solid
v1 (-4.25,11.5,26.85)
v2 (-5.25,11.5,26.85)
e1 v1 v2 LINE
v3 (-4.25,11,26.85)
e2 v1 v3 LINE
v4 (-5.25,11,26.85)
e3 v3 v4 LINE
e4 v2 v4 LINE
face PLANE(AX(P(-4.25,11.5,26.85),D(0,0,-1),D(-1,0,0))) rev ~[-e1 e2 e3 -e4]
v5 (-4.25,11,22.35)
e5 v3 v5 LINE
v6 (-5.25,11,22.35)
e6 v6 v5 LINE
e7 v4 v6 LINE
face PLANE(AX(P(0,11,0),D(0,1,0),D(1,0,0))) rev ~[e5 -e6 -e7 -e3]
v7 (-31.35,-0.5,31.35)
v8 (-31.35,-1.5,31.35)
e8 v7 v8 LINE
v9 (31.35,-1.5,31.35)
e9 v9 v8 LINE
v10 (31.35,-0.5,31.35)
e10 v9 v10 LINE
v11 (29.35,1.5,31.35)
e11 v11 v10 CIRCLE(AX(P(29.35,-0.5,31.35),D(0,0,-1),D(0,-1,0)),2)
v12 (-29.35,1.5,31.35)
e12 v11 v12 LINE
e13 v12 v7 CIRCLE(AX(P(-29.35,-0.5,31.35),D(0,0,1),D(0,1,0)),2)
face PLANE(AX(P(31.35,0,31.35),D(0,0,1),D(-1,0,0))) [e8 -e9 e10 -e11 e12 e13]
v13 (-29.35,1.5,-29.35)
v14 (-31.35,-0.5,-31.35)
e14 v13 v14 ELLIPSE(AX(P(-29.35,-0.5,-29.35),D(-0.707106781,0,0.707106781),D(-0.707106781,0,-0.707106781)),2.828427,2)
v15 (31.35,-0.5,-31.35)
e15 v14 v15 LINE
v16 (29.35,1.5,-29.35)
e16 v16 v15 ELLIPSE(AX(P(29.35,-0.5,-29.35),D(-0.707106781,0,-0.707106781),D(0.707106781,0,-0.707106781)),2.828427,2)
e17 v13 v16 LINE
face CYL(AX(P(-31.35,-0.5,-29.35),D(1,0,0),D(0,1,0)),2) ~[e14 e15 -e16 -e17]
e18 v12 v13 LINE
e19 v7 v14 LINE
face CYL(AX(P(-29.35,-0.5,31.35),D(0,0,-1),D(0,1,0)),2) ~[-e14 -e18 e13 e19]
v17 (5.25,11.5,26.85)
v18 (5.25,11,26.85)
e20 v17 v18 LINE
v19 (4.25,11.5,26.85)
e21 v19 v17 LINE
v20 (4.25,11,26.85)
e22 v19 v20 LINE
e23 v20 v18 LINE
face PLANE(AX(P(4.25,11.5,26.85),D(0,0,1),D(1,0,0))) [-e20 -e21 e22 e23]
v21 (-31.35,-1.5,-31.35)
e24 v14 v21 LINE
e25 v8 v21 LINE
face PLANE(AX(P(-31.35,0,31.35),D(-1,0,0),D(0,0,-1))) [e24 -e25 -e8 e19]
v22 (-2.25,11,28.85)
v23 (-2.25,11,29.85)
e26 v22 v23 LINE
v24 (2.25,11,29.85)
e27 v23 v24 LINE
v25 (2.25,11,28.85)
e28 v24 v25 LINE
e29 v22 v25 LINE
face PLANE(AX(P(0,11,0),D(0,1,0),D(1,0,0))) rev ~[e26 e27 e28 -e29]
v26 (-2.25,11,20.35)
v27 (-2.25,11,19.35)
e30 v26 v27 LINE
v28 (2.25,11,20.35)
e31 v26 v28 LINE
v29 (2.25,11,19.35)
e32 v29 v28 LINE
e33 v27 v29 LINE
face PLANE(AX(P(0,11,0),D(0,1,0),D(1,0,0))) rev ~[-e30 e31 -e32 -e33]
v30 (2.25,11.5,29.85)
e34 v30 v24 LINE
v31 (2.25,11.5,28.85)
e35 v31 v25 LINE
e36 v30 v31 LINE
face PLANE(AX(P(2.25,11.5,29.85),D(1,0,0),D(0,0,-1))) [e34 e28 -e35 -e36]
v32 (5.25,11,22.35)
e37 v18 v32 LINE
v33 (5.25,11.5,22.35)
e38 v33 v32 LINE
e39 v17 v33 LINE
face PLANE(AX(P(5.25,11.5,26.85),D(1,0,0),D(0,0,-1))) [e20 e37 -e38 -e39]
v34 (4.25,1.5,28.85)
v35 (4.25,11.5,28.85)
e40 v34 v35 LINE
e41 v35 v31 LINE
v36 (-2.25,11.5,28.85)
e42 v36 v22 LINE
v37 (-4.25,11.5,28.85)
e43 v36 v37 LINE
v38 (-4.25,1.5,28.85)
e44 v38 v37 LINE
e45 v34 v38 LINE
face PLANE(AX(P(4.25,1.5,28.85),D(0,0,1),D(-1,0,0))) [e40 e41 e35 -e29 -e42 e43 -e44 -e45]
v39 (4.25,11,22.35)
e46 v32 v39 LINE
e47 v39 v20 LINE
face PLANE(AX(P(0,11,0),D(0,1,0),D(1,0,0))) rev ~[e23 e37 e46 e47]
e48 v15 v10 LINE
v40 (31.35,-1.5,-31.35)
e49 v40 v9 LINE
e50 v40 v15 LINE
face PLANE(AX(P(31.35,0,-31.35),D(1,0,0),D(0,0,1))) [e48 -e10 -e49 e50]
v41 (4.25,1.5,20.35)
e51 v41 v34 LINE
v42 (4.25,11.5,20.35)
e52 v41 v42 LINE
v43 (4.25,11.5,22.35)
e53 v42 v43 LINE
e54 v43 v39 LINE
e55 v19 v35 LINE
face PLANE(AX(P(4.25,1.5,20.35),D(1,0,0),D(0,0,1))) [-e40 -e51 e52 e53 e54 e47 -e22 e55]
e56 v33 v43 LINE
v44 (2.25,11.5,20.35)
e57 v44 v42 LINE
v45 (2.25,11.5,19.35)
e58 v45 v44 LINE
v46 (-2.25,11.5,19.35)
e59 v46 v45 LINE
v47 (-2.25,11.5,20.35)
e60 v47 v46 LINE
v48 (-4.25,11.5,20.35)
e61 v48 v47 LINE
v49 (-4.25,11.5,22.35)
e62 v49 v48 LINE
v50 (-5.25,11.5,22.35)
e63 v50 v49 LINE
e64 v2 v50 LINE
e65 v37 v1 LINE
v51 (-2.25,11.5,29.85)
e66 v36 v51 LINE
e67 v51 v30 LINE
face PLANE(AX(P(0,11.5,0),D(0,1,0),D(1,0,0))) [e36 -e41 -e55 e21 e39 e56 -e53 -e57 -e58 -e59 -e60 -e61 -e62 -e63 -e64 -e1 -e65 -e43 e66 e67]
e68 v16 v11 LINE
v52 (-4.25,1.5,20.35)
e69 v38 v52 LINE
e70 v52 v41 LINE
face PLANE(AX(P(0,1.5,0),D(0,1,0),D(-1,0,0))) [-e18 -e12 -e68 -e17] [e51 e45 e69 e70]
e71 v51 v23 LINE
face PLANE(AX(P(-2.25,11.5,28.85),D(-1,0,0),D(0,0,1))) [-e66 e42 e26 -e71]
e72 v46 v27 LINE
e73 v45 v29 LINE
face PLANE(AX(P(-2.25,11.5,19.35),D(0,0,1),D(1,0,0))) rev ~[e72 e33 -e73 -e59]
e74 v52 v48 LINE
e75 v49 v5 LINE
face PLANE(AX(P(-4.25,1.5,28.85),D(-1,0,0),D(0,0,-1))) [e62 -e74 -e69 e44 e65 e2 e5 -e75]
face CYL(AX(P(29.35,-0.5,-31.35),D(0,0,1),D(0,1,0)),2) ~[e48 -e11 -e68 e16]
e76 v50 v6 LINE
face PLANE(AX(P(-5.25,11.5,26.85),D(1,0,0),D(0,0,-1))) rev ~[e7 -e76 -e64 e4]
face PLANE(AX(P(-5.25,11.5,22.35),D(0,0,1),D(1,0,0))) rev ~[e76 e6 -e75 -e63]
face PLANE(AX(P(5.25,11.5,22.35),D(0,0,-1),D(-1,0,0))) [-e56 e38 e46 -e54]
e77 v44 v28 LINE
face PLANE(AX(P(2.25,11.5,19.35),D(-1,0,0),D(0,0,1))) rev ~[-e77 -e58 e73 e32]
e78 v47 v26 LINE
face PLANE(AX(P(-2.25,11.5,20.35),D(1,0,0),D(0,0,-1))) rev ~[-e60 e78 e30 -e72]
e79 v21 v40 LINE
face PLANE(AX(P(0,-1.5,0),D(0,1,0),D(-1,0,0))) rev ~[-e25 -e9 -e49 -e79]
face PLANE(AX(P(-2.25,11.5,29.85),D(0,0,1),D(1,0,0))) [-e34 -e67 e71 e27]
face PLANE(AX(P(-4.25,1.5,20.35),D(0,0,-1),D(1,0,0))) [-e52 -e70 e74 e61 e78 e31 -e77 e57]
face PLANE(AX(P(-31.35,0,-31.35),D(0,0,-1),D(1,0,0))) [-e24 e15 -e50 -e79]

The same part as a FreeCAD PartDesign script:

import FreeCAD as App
import Part
import Sketcher

V = App.Vector
Q = App.Units.Quantity


def edges_at(feature, points):
    """Names of the edges that pass closest to the given points."""
    edges = feature.Shape.Edges
    near = lambda p: min(range(len(edges)), key=lambda i: edges[i].distToShape(Part.Vertex(*p))[0])
    return sorted({f"Edge{near(p) + 1}" for p in points})

doc = App.newDocument("Part")
params = doc.addObject("Spreadsheet::Sheet", "Params")
for row, (alias, value) in enumerate([
    ("sketch1_width", "62.7 mm"),
    ("pad1_length", "3 mm"),
    ("sketch2_width", "8.5 mm"),
    ("pad2_length", "10 mm"),
    ("sketch3_width", "1 mm"),
    ("sketch3_width2", "4.5 mm"),
    ("pad3_length", "0.5 mm"),
    ("fillet_radius", "2 mm"),
], start=1):
    params.set(f"A{row}", alias)
    params.set(f"B{row}", "=" + value)
    params.setAlias(f"B{row}", alias)

body = doc.addObject("PartDesign::Body", "Body")

sketch1 = body.newObject("Sketcher::SketchObject", "Sketch")
sketch1.AttachmentSupport = (doc.getObject("XZ_Plane"), [""])
sketch1.MapMode = "FlatFace"
sketch1.addGeometry(Part.LineSegment(V(-31, 31, 0), V(31, 31, 0)), False)
sketch1.addGeometry(Part.LineSegment(V(31, 31, 0), V(31, -31, 0)), False)
sketch1.addGeometry(Part.LineSegment(V(31, -31, 0), V(-31, -31, 0)), False)
sketch1.addGeometry(Part.LineSegment(V(-31, -31, 0), V(-31, 31, 0)), False)
sketch1.addConstraint(Sketcher.Constraint("Coincident", 0, 2, 1, 1))
sketch1.addConstraint(Sketcher.Constraint("Coincident", 1, 2, 2, 1))
sketch1.addConstraint(Sketcher.Constraint("Coincident", 2, 2, 3, 1))
sketch1.addConstraint(Sketcher.Constraint("Coincident", 3, 2, 0, 1))
sketch1.addConstraint(Sketcher.Constraint("Horizontal", 0))
sketch1.addConstraint(Sketcher.Constraint("Vertical", 1))
sketch1.addConstraint(Sketcher.Constraint("Horizontal", 2))
sketch1.addConstraint(Sketcher.Constraint("Vertical", 3))
sketch1.addConstraint(Sketcher.Constraint("Symmetric", 0, 2, 2, 2, -1, 1))
sketch1.addConstraint(Sketcher.Constraint("Equal", 2, 1))
sketch1.addConstraint(Sketcher.Constraint("DistanceX", 0, 1, 0, 2, Q("62.7 mm")))
sketch1.setExpression("Constraints[10]", "Params.sketch1_width")
pad1 = body.newObject("PartDesign::Pad", "Pad")
pad1.Profile = sketch1
pad1.setExpression("Length", "Params.pad1_length")
pad1.Midplane = True

sketch2 = body.newObject("Sketcher::SketchObject", "Sketch001")
sketch2.AttachmentSupport = (doc.getObject("XZ_Plane"), [""])
sketch2.MapMode = "FlatFace"
sketch2.AttachmentOffset = App.Placement(V(0, 0, -1.5), App.Rotation())
sketch2.addGeometry(Part.LineSegment(V(-4, 29, 0), V(4, 29, 0)), False)
sketch2.addGeometry(Part.LineSegment(V(4, 29, 0), V(4, 20, 0)), False)
sketch2.addGeometry(Part.LineSegment(V(4, 20, 0), V(-4, 20, 0)), False)
sketch2.addGeometry(Part.LineSegment(V(-4, 20, 0), V(-4, 29, 0)), False)
sketch2.addConstraint(Sketcher.Constraint("Coincident", 0, 2, 1, 1))
sketch2.addConstraint(Sketcher.Constraint("Coincident", 1, 2, 2, 1))
sketch2.addConstraint(Sketcher.Constraint("Coincident", 2, 2, 3, 1))
sketch2.addConstraint(Sketcher.Constraint("Coincident", 3, 2, 0, 1))
sketch2.addConstraint(Sketcher.Constraint("Horizontal", 0))
sketch2.addConstraint(Sketcher.Constraint("Vertical", 1))
sketch2.addConstraint(Sketcher.Constraint("Horizontal", 2))
sketch2.addConstraint(Sketcher.Constraint("Vertical", 3))
sketch2.addConstraint(Sketcher.Constraint("Equal", 2, 1))
sketch2.addConstraint(Sketcher.Constraint("DistanceX", 0, 1, 0, 2, Q("8.5 mm")))
sketch2.addConstraint(Sketcher.Constraint("DistanceX", -1, 1, 0, 2, Q("4.25 mm")))
sketch2.addConstraint(Sketcher.Constraint("DistanceY", -1, 1, 0, 2, Q("28.85 mm")))
sketch2.setExpression("Constraints[9]", "Params.sketch2_width")
pad2 = body.newObject("PartDesign::Pad", "Pad001")
pad2.Profile = sketch2
pad2.setExpression("Length", "Params.pad2_length")
pad2.Reversed = True

sketch3 = body.newObject("Sketcher::SketchObject", "Sketch002")
sketch3.AttachmentSupport = (doc.getObject("XZ_Plane"), [""])
sketch3.MapMode = "FlatFace"
sketch3.AttachmentOffset = App.Placement(V(0, 0, -11.5), App.Rotation())
sketch3.addGeometry(Part.LineSegment(V(-5.2, 26.9, 0), V(-4.2, 26.9, 0)), False)
sketch3.addGeometry(Part.LineSegment(V(-4.2, 26.9, 0), V(-4.2, 22.4, 0)), False)
sketch3.addGeometry(Part.LineSegment(V(-4.2, 22.4, 0), V(-5.2, 22.4, 0)), False)
sketch3.addGeometry(Part.LineSegment(V(-5.2, 22.4, 0), V(-5.2, 26.9, 0)), False)
sketch3.addGeometry(Part.LineSegment(V(2.2, 28.9, 0), V(-2.2, 28.9, 0)), False)
sketch3.addGeometry(Part.LineSegment(V(-2.2, 28.9, 0), V(-2.2, 29.9, 0)), False)
sketch3.addGeometry(Part.LineSegment(V(-2.2, 29.9, 0), V(2.2, 29.9, 0)), False)
sketch3.addGeometry(Part.LineSegment(V(2.2, 29.9, 0), V(2.2, 28.9, 0)), False)
sketch3.addGeometry(Part.LineSegment(V(-2.2, 19.4, 0), V(-2.2, 20.4, 0)), False)
sketch3.addGeometry(Part.LineSegment(V(-2.2, 20.4, 0), V(2.2, 20.4, 0)), False)
sketch3.addGeometry(Part.LineSegment(V(2.2, 20.4, 0), V(2.2, 19.4, 0)), False)
sketch3.addGeometry(Part.LineSegment(V(2.2, 19.4, 0), V(-2.2, 19.4, 0)), False)
sketch3.addGeometry(Part.LineSegment(V(4.2, 22.4, 0), V(4.2, 26.9, 0)), False)
sketch3.addGeometry(Part.LineSegment(V(4.2, 26.9, 0), V(5.2, 26.9, 0)), False)
sketch3.addGeometry(Part.LineSegment(V(5.2, 26.9, 0), V(5.2, 22.4, 0)), False)
sketch3.addGeometry(Part.LineSegment(V(5.2, 22.4, 0), V(4.2, 22.4, 0)), False)
sketch3.addConstraint(Sketcher.Constraint("Coincident", 0, 2, 1, 1))
sketch3.addConstraint(Sketcher.Constraint("Coincident", 1, 2, 2, 1))
sketch3.addConstraint(Sketcher.Constraint("Coincident", 2, 2, 3, 1))
sketch3.addConstraint(Sketcher.Constraint("Coincident", 3, 2, 0, 1))
sketch3.addConstraint(Sketcher.Constraint("Coincident", 4, 2, 5, 1))
sketch3.addConstraint(Sketcher.Constraint("Coincident", 5, 2, 6, 1))
sketch3.addConstraint(Sketcher.Constraint("Coincident", 6, 2, 7, 1))
sketch3.addConstraint(Sketcher.Constraint("Coincident", 7, 2, 4, 1))
sketch3.addConstraint(Sketcher.Constraint("Coincident", 8, 2, 9, 1))
sketch3.addConstraint(Sketcher.Constraint("Coincident", 9, 2, 10, 1))
sketch3.addConstraint(Sketcher.Constraint("Coincident", 10, 2, 11, 1))
sketch3.addConstraint(Sketcher.Constraint("Coincident", 11, 2, 8, 1))
sketch3.addConstraint(Sketcher.Constraint("Coincident", 12, 2, 13, 1))
sketch3.addConstraint(Sketcher.Constraint("Coincident", 13, 2, 14, 1))
sketch3.addConstraint(Sketcher.Constraint("Coincident", 14, 2, 15, 1))
sketch3.addConstraint(Sketcher.Constraint("Coincident", 15, 2, 12, 1))
sketch3.addConstraint(Sketcher.Constraint("Horizontal", 0))
sketch3.addConstraint(Sketcher.Constraint("Vertical", 1))
sketch3.addConstraint(Sketcher.Constraint("Horizontal", 2))
sketch3.addConstraint(Sketcher.Constraint("Vertical", 3))
sketch3.addConstraint(Sketcher.Constraint("Horizontal", 4))
sketch3.addConstraint(Sketcher.Constraint("Vertical", 5))
sketch3.addConstraint(Sketcher.Constraint("Horizontal", 6))
sketch3.addConstraint(Sketcher.Constraint("Vertical", 7))
sketch3.addConstraint(Sketcher.Constraint("Vertical", 8))
sketch3.addConstraint(Sketcher.Constraint("Horizontal", 9))
sketch3.addConstraint(Sketcher.Constraint("Vertical", 10))
sketch3.addConstraint(Sketcher.Constraint("Horizontal", 11))
sketch3.addConstraint(Sketcher.Constraint("Vertical", 12))
sketch3.addConstraint(Sketcher.Constraint("Horizontal", 13))
sketch3.addConstraint(Sketcher.Constraint("Vertical", 14))
sketch3.addConstraint(Sketcher.Constraint("Horizontal", 15))
sketch3.addConstraint(Sketcher.Constraint("Symmetric", 0, 2, 12, 2, -2))
sketch3.addConstraint(Sketcher.Constraint("Symmetric", 2, 2, 14, 2, -2))
sketch3.addConstraint(Sketcher.Constraint("Vertical", 5, 2, 8, 2))
sketch3.addConstraint(Sketcher.Constraint("Vertical", 7, 2, 9, 2))
sketch3.addConstraint(Sketcher.Constraint("Equal", 11, 1))
sketch3.addConstraint(Sketcher.Constraint("Equal", 15, 5))
sketch3.addConstraint(Sketcher.Constraint("Equal", 7, 8))
sketch3.addConstraint(Sketcher.Constraint("DistanceX", 0, 1, 0, 2, Q("1 mm")))
sketch3.addConstraint(Sketcher.Constraint("DistanceX", 0, 2, 4, 2, Q("2 mm")))
sketch3.addConstraint(Sketcher.Constraint("DistanceY", 0, 2, 4, 2, Q("2 mm")))
sketch3.addConstraint(Sketcher.Constraint("DistanceY", 8, 2, 1, 2, Q("2 mm")))
sketch3.addConstraint(Sketcher.Constraint("DistanceX", 7, 2, 12, 2, Q("2 mm")))
sketch3.addConstraint(Sketcher.Constraint("DistanceX", 4, 2, 4, 1, Q("4.5 mm")))
sketch3.addConstraint(Sketcher.Constraint("DistanceY", -1, 1, 0, 2, Q("26.85 mm")))
sketch3.setExpression("Constraints[39]", "Params.sketch3_width")
sketch3.setExpression("Constraints[44]", "Params.sketch3_width2")
pad3 = body.newObject("PartDesign::Pad", "Pad002")
pad3.Profile = sketch3
pad3.setExpression("Length", "Params.pad3_length")
doc.recompute()

fillet = body.newObject("PartDesign::Fillet", "Fillet")
fillet.Base = (pad3, edges_at(pad3, [(-31.35, 1.5, 0), (0, 1.5, -31.35), (31.35, 1.5, 0)]))
fillet.setExpression("Radius", "Params.fillet_radius")

doc.recompute()
